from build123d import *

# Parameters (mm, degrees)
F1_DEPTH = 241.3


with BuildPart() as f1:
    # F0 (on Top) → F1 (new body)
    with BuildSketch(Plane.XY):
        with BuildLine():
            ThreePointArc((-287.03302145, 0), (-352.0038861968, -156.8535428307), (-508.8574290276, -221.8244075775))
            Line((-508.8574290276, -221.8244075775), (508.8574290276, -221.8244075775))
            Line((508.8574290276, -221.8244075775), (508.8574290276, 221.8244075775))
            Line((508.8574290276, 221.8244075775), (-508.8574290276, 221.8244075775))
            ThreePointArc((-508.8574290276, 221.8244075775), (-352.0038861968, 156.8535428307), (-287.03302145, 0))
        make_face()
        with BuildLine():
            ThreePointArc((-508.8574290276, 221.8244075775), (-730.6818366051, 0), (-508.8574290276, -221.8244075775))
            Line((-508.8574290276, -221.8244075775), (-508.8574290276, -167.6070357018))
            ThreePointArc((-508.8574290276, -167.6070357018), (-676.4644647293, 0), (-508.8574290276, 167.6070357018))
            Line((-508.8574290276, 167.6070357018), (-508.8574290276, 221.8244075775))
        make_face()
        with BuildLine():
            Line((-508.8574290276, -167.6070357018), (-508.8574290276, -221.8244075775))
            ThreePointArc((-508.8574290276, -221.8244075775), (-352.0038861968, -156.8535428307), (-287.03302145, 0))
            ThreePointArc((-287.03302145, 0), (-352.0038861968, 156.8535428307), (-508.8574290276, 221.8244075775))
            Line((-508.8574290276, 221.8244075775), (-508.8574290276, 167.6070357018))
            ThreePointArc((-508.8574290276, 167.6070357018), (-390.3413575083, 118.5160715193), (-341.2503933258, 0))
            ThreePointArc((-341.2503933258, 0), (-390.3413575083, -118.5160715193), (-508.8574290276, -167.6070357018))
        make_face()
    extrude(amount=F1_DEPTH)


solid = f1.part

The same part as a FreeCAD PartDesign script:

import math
import FreeCAD as App
import Part
import Sketcher
Q = App.Units.Quantity

doc = App.newDocument("Part")
body = doc.addObject("PartDesign::Body", "Body")

# Sketch on XY plane
sketch1 = body.newObject("Sketcher::SketchObject", "Sketch")
sketch1.AttachmentSupport = (doc.getObject("XY_Plane"), [""])
sketch1.MapMode = "FlatFace"
sketch1.addGeometry([
    Part.LineSegment(App.Vector(-509, -222, 0), App.Vector(509, -222, 0)),  # 0
    Part.LineSegment(App.Vector(509, -222, 0), App.Vector(509, 222, 0)),  # 1
    Part.LineSegment(App.Vector(509, 222, 0), App.Vector(-509, 222, 0)),  # 2
    Part.ArcOfCircle(Part.Circle(App.Vector(-509, 0, 0), App.Vector(0, 0, 1), 222), math.radians(90), math.radians(270)),  # 3
    Part.Circle(App.Vector(-509, 0, 0), App.Vector(0, 0, 1), 168),  # 4
], False)
sketch1.addConstraint([
    Sketcher.Constraint("Coincident", 0, 2, 1, 1),
    Sketcher.Constraint("Coincident", 1, 2, 2, 1),
    Sketcher.Constraint("Tangent", 2, 2, 3, 1),
    Sketcher.Constraint("Tangent", 3, 2, 0, 1),
    Sketcher.Constraint("Horizontal", 0),
    Sketcher.Constraint("Vertical", 1),
    Sketcher.Constraint("Horizontal", 2),
    Sketcher.Constraint("Coincident", 4, 3, 3, 3),
    Sketcher.Constraint("Symmetric", 0, 2, 2, 2, -1, 1),
    Sketcher.Constraint("Diameter", 4, Q("335.214071 mm")),
    Sketcher.Constraint("Radius", 3, Q("221.824408 mm")),
    Sketcher.Constraint("DistanceX", 0, 1, 0, 2, Q("1017.714858 mm")),
])
pad1 = body.newObject("PartDesign::Pad", "Pad")
pad1.Profile = sketch1
pad1.Length = Q("9.5 in")

doc.recompute()
